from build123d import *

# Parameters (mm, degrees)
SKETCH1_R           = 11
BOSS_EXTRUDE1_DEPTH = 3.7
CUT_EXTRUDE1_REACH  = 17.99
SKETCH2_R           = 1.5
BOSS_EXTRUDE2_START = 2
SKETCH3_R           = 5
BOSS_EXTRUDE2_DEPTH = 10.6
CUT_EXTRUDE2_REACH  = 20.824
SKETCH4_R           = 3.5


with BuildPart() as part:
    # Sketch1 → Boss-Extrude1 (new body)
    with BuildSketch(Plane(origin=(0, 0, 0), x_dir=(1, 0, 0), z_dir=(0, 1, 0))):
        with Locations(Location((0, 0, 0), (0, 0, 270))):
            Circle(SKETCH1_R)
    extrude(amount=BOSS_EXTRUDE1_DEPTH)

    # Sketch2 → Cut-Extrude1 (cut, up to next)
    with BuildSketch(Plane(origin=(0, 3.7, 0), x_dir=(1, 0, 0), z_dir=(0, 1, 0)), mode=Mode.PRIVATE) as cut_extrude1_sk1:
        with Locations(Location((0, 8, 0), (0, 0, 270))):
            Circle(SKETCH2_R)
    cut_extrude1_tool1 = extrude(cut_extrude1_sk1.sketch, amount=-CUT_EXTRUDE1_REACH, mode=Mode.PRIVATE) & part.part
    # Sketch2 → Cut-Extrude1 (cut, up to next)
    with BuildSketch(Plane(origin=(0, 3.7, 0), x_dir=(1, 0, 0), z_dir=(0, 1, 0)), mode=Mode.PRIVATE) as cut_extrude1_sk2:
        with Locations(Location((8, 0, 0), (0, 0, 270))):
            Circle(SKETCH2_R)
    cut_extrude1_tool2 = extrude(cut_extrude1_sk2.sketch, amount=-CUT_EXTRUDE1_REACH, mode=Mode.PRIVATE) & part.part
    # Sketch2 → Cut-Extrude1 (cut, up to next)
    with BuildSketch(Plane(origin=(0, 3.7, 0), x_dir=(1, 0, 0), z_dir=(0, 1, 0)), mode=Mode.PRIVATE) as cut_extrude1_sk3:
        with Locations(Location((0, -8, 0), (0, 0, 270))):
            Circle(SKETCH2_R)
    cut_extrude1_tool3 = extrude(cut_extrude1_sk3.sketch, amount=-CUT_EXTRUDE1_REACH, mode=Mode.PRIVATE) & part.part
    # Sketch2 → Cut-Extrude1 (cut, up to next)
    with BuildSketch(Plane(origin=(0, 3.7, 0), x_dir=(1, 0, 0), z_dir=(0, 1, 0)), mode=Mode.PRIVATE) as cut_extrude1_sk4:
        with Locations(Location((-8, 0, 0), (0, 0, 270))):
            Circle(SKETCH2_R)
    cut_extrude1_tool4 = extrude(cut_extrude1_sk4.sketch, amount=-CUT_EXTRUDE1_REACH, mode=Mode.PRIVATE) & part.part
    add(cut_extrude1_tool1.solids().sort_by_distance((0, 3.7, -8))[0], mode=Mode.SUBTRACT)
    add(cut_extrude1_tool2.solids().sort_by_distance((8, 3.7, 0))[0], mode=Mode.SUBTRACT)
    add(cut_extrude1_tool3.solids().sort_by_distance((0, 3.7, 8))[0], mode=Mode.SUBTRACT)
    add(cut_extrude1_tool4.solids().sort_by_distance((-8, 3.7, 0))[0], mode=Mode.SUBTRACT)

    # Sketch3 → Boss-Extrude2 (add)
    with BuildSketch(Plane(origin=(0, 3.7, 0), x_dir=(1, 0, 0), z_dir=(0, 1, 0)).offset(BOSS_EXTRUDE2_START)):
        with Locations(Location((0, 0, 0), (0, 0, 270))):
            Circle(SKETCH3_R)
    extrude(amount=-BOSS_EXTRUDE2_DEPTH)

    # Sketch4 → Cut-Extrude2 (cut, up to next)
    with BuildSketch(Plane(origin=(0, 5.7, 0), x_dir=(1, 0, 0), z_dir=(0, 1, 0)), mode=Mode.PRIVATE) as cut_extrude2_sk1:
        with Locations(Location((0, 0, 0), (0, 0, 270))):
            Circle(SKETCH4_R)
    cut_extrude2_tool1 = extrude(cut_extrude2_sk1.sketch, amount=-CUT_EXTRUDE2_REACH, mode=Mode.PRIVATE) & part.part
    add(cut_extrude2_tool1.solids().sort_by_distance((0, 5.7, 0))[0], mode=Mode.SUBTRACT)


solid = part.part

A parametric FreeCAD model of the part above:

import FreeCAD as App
import Part
import Sketcher

V = App.Vector
Q = App.Units.Quantity

doc = App.newDocument("Part")
params = doc.addObject("Spreadsheet::Sheet", "Params")
for row, (alias, value) in enumerate([
    ("sketch1_diameter", "22 mm"),
    ("pad1_length", "3.7 mm"),
    ("sketch2_diameter", "3 mm"),
    ("sketch3_diameter", "3 mm"),
    ("sketch4_diameter", "3 mm"),
    ("sketch5_diameter", "3 mm"),
    ("sketch6_diameter", "10 mm"),
    ("pad2_length", "10.6 mm"),
    ("sketch7_diameter", "7 mm"),
], start=1):
    params.set(f"A{row}", alias)
    params.set(f"B{row}", "=" + value)
    params.setAlias(f"B{row}", alias)

body = doc.addObject("PartDesign::Body", "Body")

# Sketch on XZ plane
sketch1 = doc.addObject("Sketcher::SketchObject", "Sketch")
body.addObject(sketch1)
sketch1.AttachmentSupport = (doc.XZ_Plane, [""])
sketch1.MapMode = "FlatFace"
sketch1.addGeometry(Part.Circle(V(0, 0, 0), V(0, 0, 1), 11), False)
sketch1.addConstraint([
    Sketcher.Constraint("Coincident", 0, 3, -1, 1),
    Sketcher.Constraint("Diameter", 0, Q("22 mm")),
])
sketch1.setExpression("Constraints[1]", "Params.sketch1_diameter")
pad1 = doc.addObject("PartDesign::Pad", "Pad")
body.addObject(pad1)
pad1.Profile = sketch1
pad1.setExpression("Length", "Params.pad1_length")
pad1.Reversed = True

# Sketch on XZ plane
sketch2 = doc.addObject("Sketcher::SketchObject", "Sketch001")
body.addObject(sketch2)
sketch2.AttachmentSupport = (doc.XZ_Plane, [""])
sketch2.MapMode = "FlatFace"
sketch2.AttachmentOffset = App.Placement(V(0, 0, -3.7), App.Rotation())
sketch2.addGeometry(Part.Circle(V(0, -8, 0), V(0, 0, 1), 1.5), False)
sketch2.addConstraint([
    Sketcher.Constraint("PointOnObject", 0, 3, -2),
    Sketcher.Constraint("Diameter", 0, Q("3 mm")),
    Sketcher.Constraint("DistanceY", 0, 3, -1, 1, Q("8 mm")),
])
sketch2.setExpression("Constraints[1]", "Params.sketch2_diameter")
pocket1 = doc.addObject("PartDesign::Pocket", "Pocket")
body.addObject(pocket1)
pocket1.Profile = sketch2
pocket1.Type = "UpToFirst"
pocket1.Reversed = True

# Sketch on XZ plane
sketch3 = doc.addObject("Sketcher::SketchObject", "Sketch002")
body.addObject(sketch3)
sketch3.AttachmentSupport = (doc.XZ_Plane, [""])
sketch3.MapMode = "FlatFace"
sketch3.AttachmentOffset = App.Placement(V(0, 0, -3.7), App.Rotation())
sketch3.addGeometry(Part.Circle(V(8, 0, 0), V(0, 0, 1), 1.5), False)
sketch3.addConstraint([
    Sketcher.Constraint("PointOnObject", 0, 3, -1),
    Sketcher.Constraint("Diameter", 0, Q("3 mm")),
    Sketcher.Constraint("DistanceX", -1, 1, 0, 3, Q("8 mm")),
])
sketch3.setExpression("Constraints[1]", "Params.sketch3_diameter")
pocket2 = doc.addObject("PartDesign::Pocket", "Pocket001")
body.addObject(pocket2)
pocket2.Profile = sketch3
pocket2.Type = "UpToFirst"
pocket2.Reversed = True

# Sketch on XZ plane
sketch4 = doc.addObject("Sketcher::SketchObject", "Sketch003")
body.addObject(sketch4)
sketch4.AttachmentSupport = (doc.XZ_Plane, [""])
sketch4.MapMode = "FlatFace"
sketch4.AttachmentOffset = App.Placement(V(0, 0, -3.7), App.Rotation())
sketch4.addGeometry(Part.Circle(V(0, 8, 0), V(0, 0, 1), 1.5), False)
sketch4.addConstraint([
    Sketcher.Constraint("PointOnObject", 0, 3, -2),
    Sketcher.Constraint("Diameter", 0, Q("3 mm")),
    Sketcher.Constraint("DistanceY", -1, 1, 0, 3, Q("8 mm")),
])
sketch4.setExpression("Constraints[1]", "Params.sketch4_diameter")
pocket3 = doc.addObject("PartDesign::Pocket", "Pocket002")
body.addObject(pocket3)
pocket3.Profile = sketch4
pocket3.Type = "UpToFirst"
pocket3.Reversed = True

# Sketch on XZ plane
sketch5 = doc.addObject("Sketcher::SketchObject", "Sketch004")
body.addObject(sketch5)
sketch5.AttachmentSupport = (doc.XZ_Plane, [""])
sketch5.MapMode = "FlatFace"
sketch5.AttachmentOffset = App.Placement(V(0, 0, -3.7), App.Rotation())
sketch5.addGeometry(Part.Circle(V(-8, 0, 0), V(0, 0, 1), 1.5), False)
sketch5.addConstraint([
    Sketcher.Constraint("PointOnObject", 0, 3, -1),
    Sketcher.Constraint("Diameter", 0, Q("3 mm")),
    Sketcher.Constraint("DistanceX", 0, 3, -1, 1, Q("8 mm")),
])
sketch5.setExpression("Constraints[1]", "Params.sketch5_diameter")
pocket4 = doc.addObject("PartDesign::Pocket", "Pocket003")
body.addObject(pocket4)
pocket4.Profile = sketch5
pocket4.Type = "UpToFirst"
pocket4.Reversed = True

# Sketch on XZ plane
sketch6 = doc.addObject("Sketcher::SketchObject", "Sketch005")
body.addObject(sketch6)
sketch6.AttachmentSupport = (doc.XZ_Plane, [""])
sketch6.MapMode = "FlatFace"
sketch6.AttachmentOffset = App.Placement(V(0, 0, -5.7), App.Rotation())
sketch6.addGeometry(Part.Circle(V(0, 0, 0), V(0, 0, 1), 5), False)
sketch6.addConstraint([
    Sketcher.Constraint("Coincident", 0, 3, -1, 1),
    Sketcher.Constraint("Diameter", 0, Q("10 mm")),
])
sketch6.setExpression("Constraints[1]", "Params.sketch6_diameter")
pad2 = doc.addObject("PartDesign::Pad", "Pad001")
body.addObject(pad2)
pad2.Profile = sketch6
pad2.setExpression("Length", "Params.pad2_length")

# Sketch on XZ plane
sketch7 = doc.addObject("Sketcher::SketchObject", "Sketch006")
body.addObject(sketch7)
sketch7.AttachmentSupport = (doc.XZ_Plane, [""])
sketch7.MapMode = "FlatFace"
sketch7.AttachmentOffset = App.Placement(V(0, 0, -5.7), App.Rotation())
sketch7.addGeometry(Part.Circle(V(0, 0, 0), V(0, 0, 1), 3.5), False)
sketch7.addConstraint([
    Sketcher.Constraint("Coincident", 0, 3, -1, 1),
    Sketcher.Constraint("Diameter", 0, Q("7 mm")),
])
sketch7.setExpression("Constraints[1]", "Params.sketch7_diameter")
pocket5 = doc.addObject("PartDesign::Pocket", "Pocket004")
body.addObject(pocket5)
pocket5.Profile = sketch7
pocket5.Type = "UpToFirst"
pocket5.Reversed = True

doc.recompute()
